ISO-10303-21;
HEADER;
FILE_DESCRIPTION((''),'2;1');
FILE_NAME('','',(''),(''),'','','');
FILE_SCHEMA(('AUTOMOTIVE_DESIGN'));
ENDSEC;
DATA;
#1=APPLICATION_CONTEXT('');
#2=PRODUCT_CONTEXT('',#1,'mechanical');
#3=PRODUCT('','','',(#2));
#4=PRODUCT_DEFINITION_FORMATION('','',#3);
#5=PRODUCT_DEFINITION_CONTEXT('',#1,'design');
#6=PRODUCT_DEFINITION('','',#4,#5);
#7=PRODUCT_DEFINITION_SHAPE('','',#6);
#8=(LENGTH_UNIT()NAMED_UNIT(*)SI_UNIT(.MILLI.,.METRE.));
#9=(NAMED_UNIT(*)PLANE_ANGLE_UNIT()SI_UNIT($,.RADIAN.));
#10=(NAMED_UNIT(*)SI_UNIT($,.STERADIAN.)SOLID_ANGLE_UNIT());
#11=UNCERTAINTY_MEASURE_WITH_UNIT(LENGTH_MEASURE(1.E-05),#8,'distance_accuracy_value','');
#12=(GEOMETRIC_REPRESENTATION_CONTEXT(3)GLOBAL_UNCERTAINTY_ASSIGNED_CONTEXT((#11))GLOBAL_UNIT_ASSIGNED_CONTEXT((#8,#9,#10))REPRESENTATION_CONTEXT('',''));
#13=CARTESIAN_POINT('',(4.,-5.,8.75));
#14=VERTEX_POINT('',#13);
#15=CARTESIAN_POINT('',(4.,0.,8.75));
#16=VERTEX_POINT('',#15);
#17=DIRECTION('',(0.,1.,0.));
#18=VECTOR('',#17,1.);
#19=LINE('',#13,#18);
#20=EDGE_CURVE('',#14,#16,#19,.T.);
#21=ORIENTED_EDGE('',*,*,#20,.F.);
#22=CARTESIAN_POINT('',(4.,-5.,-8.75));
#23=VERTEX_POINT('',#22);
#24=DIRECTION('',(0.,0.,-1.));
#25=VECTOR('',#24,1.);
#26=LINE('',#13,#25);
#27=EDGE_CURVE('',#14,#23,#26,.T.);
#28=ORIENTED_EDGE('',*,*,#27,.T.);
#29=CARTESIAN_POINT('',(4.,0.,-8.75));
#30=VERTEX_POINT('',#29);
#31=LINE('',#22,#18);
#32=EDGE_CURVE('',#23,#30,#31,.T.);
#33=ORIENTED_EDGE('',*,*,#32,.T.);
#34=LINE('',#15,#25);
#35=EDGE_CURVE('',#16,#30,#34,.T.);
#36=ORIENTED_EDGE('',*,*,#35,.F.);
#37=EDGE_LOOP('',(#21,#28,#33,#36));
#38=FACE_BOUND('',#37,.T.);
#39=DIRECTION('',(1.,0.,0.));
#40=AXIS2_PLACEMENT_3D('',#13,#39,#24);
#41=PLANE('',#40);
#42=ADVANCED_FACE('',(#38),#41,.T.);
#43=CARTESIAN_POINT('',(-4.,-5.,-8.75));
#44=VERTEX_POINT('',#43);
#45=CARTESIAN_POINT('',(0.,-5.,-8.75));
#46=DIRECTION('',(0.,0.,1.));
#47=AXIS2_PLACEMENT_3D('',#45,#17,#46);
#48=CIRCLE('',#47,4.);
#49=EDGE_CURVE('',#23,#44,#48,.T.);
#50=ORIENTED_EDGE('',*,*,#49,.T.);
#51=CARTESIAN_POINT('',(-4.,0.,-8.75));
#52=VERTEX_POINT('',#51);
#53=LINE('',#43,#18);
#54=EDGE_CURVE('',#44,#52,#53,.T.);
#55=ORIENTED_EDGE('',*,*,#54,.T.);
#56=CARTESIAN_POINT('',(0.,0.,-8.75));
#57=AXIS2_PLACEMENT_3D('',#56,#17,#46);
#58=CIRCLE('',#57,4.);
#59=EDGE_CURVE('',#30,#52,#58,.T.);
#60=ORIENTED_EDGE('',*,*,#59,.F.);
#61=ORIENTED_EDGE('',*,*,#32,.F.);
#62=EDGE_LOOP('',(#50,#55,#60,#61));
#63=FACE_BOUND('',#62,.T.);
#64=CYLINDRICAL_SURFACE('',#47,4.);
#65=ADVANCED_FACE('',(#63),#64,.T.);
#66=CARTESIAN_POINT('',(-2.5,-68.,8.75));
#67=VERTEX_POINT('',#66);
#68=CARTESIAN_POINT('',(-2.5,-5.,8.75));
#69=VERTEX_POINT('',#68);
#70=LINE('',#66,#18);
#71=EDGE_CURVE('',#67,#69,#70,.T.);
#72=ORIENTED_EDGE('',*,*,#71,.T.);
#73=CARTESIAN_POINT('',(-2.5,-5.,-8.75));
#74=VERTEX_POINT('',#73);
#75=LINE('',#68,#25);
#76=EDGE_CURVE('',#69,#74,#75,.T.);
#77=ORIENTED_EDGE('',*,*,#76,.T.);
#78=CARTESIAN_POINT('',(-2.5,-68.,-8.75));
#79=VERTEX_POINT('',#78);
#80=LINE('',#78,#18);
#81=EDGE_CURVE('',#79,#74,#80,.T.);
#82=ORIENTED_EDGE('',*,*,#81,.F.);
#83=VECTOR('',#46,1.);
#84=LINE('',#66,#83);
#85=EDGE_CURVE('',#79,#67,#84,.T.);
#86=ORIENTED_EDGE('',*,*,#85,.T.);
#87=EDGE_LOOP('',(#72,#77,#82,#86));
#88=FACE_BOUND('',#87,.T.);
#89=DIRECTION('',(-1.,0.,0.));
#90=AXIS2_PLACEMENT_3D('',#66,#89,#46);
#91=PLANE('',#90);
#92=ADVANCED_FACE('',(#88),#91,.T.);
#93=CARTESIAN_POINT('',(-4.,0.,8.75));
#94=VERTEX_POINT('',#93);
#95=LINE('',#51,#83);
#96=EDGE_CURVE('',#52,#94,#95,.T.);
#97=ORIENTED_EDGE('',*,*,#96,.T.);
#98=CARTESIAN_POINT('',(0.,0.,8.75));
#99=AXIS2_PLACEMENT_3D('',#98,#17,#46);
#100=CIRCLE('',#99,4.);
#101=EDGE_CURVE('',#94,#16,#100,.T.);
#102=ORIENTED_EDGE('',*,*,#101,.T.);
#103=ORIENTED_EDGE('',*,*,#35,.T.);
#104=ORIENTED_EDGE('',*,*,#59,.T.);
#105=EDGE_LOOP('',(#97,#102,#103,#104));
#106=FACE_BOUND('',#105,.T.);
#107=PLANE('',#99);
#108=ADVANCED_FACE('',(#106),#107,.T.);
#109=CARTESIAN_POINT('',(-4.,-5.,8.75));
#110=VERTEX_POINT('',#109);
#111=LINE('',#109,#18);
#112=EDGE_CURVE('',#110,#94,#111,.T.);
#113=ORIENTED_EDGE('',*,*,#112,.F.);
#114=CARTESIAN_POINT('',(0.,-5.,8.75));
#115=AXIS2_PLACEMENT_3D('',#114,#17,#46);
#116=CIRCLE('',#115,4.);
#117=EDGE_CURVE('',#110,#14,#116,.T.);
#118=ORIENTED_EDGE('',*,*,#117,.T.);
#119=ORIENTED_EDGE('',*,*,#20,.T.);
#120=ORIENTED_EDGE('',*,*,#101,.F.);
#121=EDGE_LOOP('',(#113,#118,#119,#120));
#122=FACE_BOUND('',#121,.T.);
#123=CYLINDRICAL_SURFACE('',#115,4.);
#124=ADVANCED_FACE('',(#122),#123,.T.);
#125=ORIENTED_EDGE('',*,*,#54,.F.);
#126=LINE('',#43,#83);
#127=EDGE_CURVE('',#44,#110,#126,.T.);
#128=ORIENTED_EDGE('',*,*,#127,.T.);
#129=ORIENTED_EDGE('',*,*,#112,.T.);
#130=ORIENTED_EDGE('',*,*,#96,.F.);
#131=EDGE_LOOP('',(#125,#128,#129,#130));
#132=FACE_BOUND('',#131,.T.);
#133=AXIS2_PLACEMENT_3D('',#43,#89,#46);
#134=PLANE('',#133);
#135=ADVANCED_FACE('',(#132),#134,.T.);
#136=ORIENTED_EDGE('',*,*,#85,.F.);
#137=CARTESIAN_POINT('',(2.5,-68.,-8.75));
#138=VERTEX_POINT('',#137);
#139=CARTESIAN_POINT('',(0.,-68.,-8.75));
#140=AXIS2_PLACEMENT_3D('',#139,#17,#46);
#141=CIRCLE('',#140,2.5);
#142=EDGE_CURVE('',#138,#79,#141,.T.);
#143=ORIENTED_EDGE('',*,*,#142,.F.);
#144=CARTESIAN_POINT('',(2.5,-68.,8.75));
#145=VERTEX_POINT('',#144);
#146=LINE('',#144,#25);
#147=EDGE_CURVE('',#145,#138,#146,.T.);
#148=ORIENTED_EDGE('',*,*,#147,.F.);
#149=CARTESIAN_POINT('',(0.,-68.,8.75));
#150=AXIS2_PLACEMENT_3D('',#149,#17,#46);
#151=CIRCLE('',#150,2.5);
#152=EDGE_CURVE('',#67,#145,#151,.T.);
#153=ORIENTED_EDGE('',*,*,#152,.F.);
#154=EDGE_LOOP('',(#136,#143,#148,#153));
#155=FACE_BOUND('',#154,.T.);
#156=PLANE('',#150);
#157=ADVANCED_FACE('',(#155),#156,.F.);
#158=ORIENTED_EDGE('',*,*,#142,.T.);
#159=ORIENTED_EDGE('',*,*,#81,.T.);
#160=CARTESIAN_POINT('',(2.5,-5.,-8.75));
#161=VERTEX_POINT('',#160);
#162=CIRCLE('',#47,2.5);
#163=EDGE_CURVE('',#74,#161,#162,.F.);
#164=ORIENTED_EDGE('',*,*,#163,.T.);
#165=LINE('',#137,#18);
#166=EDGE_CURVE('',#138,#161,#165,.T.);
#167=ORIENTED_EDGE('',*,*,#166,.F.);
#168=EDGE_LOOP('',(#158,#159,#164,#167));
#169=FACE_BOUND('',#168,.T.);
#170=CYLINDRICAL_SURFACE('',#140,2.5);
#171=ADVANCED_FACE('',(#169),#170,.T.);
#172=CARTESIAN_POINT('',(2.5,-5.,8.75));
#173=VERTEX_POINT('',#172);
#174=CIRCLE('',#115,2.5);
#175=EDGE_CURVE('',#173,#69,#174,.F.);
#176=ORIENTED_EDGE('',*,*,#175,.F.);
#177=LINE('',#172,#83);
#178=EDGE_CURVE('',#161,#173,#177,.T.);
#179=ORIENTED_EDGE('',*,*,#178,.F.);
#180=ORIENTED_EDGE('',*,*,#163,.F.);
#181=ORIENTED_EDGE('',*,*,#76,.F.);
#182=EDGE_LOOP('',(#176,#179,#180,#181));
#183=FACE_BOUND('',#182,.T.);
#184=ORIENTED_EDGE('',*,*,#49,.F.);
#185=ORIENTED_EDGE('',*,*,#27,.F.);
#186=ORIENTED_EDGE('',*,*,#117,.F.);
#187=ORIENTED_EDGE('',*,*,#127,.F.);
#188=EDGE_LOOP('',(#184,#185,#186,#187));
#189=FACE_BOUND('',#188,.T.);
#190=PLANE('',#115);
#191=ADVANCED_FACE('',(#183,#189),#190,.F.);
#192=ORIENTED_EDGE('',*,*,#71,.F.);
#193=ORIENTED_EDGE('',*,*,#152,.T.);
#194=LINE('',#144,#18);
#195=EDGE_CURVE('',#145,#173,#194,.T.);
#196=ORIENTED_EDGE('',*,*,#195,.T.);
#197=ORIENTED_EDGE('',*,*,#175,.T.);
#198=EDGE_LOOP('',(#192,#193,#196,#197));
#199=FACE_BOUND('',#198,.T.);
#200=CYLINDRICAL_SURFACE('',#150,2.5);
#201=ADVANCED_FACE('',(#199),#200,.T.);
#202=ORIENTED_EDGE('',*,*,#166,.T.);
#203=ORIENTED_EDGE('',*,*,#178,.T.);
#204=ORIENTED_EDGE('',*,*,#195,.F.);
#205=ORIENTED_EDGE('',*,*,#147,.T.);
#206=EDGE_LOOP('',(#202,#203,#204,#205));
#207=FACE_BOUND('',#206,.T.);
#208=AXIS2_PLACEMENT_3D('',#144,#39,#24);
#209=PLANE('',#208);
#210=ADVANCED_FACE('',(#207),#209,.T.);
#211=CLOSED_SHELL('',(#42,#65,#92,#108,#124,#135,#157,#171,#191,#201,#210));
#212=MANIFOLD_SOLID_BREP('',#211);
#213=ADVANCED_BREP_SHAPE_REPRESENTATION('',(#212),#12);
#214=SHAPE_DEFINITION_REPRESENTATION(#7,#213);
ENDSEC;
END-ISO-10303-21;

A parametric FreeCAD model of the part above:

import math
import FreeCAD as App
import Part
import Sketcher
from FreeCAD import Vector

doc = App.newDocument("Part")
body = doc.addObject("PartDesign::Body", "Body")

# Sketch on XZ plane
sketch1 = body.newObject("Sketcher::SketchObject", "Sketch")
sketch1.AttachmentSupport = (doc.getObject("XZ_Plane"), [""])
sketch1.MapMode = "FlatFace"
sketch1.addGeometry(Part.LineSegment(Vector(-2.5, -8.8, 0), Vector(-2.5, 8.8, 0)), False)
sketch1.addGeometry(Part.ArcOfCircle(Part.Circle(Vector(0, 8.8, 0), Vector(0, 0, 1), 2.5), math.radians(0), math.radians(180)), False)
sketch1.addGeometry(Part.LineSegment(Vector(2.5, 8.8, 0), Vector(2.5, -8.8, 0)), False)
sketch1.addGeometry(Part.ArcOfCircle(Part.Circle(Vector(0, -8.8, 0), Vector(0, 0, 1), 2.5), math.radians(180), math.radians(360)), False)
sketch1.addConstraint(Sketcher.Constraint("Tangent", 0, 2, 1, 2))
sketch1.addConstraint(Sketcher.Constraint("Tangent", 1, 1, 2, 1))
sketch1.addConstraint(Sketcher.Constraint("Tangent", 2, 2, 3, 2))
sketch1.addConstraint(Sketcher.Constraint("Tangent", 3, 1, 0, 1))
sketch1.addConstraint(Sketcher.Constraint("Vertical", 0))
sketch1.addConstraint(Sketcher.Constraint("Vertical", 2))
sketch1.addConstraint(Sketcher.Constraint("Symmetric", 1, 3, 3, 3, -1, 1))
sketch1.addConstraint(Sketcher.Constraint("Radius", 1, 2.5))
sketch1.addConstraint(Sketcher.Constraint("DistanceY", 0, 1, 0, 2, 17.5))
pad1 = body.newObject("PartDesign::Pad", "Pad")
pad1.Profile = sketch1
pad1.Length = 68

# Sketch on XZ plane
sketch2 = body.newObject("Sketcher::SketchObject", "Sketch001")
sketch2.AttachmentSupport = (doc.getObject("XZ_Plane"), [""])
sketch2.MapMode = "FlatFace"
sketch2.addGeometry(Part.LineSegment(Vector(4, 8.8, 0), Vector(4, -8.8, 0)), False)
sketch2.addGeometry(Part.ArcOfCircle(Part.Circle(Vector(0, -8.8, 0), Vector(0, 0, 1), 4), math.radians(180), math.radians(360)), False)
sketch2.addGeometry(Part.LineSegment(Vector(-4, -8.8, 0), Vector(-4, 8.8, 0)), False)
sketch2.addGeometry(Part.ArcOfCircle(Part.Circle(Vector(0, 8.8, 0), Vector(0, 0, 1), 4), math.radians(0), math.radians(180)), False)
sketch2.addConstraint(Sketcher.Constraint("Tangent", 0, 2, 1, 2))
sketch2.addConstraint(Sketcher.Constraint("Tangent", 1, 1, 2, 1))
sketch2.addConstraint(Sketcher.Constraint("Tangent", 2, 2, 3, 2))
sketch2.addConstraint(Sketcher.Constraint("Tangent", 3, 1, 0, 1))
sketch2.addConstraint(Sketcher.Constraint("Vertical", 0))
sketch2.addConstraint(Sketcher.Constraint("Vertical", 2))
sketch2.addConstraint(Sketcher.Constraint("Symmetric", 1, 3, 3, 3, -1, 1))
sketch2.addConstraint(Sketcher.Constraint("Radius", 1, 4.0))
sketch2.addConstraint(Sketcher.Constraint("DistanceY", 0, 2, 0, 1, 17.5))
pad2 = body.newObject("PartDesign::Pad", "Pad001")
pad2.Profile = sketch2
pad2.Length = 5

doc.recompute()
